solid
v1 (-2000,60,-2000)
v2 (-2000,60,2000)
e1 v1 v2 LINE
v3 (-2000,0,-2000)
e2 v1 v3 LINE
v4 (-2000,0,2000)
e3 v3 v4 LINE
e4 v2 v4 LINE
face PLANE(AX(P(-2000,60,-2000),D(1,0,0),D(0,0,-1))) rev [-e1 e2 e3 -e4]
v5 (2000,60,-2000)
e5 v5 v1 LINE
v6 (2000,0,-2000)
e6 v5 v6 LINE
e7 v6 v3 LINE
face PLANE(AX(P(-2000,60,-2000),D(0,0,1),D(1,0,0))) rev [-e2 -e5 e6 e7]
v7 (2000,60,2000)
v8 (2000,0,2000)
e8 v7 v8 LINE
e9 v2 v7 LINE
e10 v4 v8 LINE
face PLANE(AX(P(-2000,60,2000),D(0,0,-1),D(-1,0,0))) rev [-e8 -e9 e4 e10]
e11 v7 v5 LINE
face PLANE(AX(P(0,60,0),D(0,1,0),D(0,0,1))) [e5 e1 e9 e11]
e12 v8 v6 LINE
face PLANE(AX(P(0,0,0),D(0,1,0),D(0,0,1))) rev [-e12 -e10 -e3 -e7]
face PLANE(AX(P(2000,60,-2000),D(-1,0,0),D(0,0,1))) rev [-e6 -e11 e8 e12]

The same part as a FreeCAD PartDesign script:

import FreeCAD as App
import Part
import Sketcher
Q = App.Units.Quantity

doc = App.newDocument("Part")
body = doc.addObject("PartDesign::Body", "Body")

# Sketch on XZ plane
sketch1 = body.newObject("Sketcher::SketchObject", "Sketch")
sketch1.AttachmentSupport = (doc.getObject("XZ_Plane"), [""])
sketch1.MapMode = "FlatFace"
sketch1.addGeometry(Part.LineSegment(App.Vector(-2000, -2000, 0), App.Vector(-2000, 2000, 0)), False)
sketch1.addGeometry(Part.LineSegment(App.Vector(-2000, 2000, 0), App.Vector(2000, 2000, 0)), False)
sketch1.addGeometry(Part.LineSegment(App.Vector(2000, 2000, 0), App.Vector(2000, -2000, 0)), False)
sketch1.addGeometry(Part.LineSegment(App.Vector(2000, -2000, 0), App.Vector(-2000, -2000, 0)), False)
sketch1.addConstraint(Sketcher.Constraint("Coincident", 0, 2, 1, 1))
sketch1.addConstraint(Sketcher.Constraint("Coincident", 1, 2, 2, 1))
sketch1.addConstraint(Sketcher.Constraint("Coincident", 2, 2, 3, 1))
sketch1.addConstraint(Sketcher.Constraint("Coincident", 3, 2, 0, 1))
sketch1.addConstraint(Sketcher.Constraint("Vertical", 0))
sketch1.addConstraint(Sketcher.Constraint("Horizontal", 1))
sketch1.addConstraint(Sketcher.Constraint("Vertical", 2))
sketch1.addConstraint(Sketcher.Constraint("Horizontal", 3))
sketch1.addConstraint(Sketcher.Constraint("Symmetric", 0, 2, 2, 2, -1, 1))
sketch1.addConstraint(Sketcher.Constraint("Equal", 3, 0))
sketch1.addConstraint(Sketcher.Constraint("DistanceX", 1, 1, 1, 2, Q("4000 mm")))
pad1 = body.newObject("PartDesign::Pad", "Pad")
pad1.Profile = sketch1
pad1.Length = 60
pad1.Reversed = True

doc.recompute()
